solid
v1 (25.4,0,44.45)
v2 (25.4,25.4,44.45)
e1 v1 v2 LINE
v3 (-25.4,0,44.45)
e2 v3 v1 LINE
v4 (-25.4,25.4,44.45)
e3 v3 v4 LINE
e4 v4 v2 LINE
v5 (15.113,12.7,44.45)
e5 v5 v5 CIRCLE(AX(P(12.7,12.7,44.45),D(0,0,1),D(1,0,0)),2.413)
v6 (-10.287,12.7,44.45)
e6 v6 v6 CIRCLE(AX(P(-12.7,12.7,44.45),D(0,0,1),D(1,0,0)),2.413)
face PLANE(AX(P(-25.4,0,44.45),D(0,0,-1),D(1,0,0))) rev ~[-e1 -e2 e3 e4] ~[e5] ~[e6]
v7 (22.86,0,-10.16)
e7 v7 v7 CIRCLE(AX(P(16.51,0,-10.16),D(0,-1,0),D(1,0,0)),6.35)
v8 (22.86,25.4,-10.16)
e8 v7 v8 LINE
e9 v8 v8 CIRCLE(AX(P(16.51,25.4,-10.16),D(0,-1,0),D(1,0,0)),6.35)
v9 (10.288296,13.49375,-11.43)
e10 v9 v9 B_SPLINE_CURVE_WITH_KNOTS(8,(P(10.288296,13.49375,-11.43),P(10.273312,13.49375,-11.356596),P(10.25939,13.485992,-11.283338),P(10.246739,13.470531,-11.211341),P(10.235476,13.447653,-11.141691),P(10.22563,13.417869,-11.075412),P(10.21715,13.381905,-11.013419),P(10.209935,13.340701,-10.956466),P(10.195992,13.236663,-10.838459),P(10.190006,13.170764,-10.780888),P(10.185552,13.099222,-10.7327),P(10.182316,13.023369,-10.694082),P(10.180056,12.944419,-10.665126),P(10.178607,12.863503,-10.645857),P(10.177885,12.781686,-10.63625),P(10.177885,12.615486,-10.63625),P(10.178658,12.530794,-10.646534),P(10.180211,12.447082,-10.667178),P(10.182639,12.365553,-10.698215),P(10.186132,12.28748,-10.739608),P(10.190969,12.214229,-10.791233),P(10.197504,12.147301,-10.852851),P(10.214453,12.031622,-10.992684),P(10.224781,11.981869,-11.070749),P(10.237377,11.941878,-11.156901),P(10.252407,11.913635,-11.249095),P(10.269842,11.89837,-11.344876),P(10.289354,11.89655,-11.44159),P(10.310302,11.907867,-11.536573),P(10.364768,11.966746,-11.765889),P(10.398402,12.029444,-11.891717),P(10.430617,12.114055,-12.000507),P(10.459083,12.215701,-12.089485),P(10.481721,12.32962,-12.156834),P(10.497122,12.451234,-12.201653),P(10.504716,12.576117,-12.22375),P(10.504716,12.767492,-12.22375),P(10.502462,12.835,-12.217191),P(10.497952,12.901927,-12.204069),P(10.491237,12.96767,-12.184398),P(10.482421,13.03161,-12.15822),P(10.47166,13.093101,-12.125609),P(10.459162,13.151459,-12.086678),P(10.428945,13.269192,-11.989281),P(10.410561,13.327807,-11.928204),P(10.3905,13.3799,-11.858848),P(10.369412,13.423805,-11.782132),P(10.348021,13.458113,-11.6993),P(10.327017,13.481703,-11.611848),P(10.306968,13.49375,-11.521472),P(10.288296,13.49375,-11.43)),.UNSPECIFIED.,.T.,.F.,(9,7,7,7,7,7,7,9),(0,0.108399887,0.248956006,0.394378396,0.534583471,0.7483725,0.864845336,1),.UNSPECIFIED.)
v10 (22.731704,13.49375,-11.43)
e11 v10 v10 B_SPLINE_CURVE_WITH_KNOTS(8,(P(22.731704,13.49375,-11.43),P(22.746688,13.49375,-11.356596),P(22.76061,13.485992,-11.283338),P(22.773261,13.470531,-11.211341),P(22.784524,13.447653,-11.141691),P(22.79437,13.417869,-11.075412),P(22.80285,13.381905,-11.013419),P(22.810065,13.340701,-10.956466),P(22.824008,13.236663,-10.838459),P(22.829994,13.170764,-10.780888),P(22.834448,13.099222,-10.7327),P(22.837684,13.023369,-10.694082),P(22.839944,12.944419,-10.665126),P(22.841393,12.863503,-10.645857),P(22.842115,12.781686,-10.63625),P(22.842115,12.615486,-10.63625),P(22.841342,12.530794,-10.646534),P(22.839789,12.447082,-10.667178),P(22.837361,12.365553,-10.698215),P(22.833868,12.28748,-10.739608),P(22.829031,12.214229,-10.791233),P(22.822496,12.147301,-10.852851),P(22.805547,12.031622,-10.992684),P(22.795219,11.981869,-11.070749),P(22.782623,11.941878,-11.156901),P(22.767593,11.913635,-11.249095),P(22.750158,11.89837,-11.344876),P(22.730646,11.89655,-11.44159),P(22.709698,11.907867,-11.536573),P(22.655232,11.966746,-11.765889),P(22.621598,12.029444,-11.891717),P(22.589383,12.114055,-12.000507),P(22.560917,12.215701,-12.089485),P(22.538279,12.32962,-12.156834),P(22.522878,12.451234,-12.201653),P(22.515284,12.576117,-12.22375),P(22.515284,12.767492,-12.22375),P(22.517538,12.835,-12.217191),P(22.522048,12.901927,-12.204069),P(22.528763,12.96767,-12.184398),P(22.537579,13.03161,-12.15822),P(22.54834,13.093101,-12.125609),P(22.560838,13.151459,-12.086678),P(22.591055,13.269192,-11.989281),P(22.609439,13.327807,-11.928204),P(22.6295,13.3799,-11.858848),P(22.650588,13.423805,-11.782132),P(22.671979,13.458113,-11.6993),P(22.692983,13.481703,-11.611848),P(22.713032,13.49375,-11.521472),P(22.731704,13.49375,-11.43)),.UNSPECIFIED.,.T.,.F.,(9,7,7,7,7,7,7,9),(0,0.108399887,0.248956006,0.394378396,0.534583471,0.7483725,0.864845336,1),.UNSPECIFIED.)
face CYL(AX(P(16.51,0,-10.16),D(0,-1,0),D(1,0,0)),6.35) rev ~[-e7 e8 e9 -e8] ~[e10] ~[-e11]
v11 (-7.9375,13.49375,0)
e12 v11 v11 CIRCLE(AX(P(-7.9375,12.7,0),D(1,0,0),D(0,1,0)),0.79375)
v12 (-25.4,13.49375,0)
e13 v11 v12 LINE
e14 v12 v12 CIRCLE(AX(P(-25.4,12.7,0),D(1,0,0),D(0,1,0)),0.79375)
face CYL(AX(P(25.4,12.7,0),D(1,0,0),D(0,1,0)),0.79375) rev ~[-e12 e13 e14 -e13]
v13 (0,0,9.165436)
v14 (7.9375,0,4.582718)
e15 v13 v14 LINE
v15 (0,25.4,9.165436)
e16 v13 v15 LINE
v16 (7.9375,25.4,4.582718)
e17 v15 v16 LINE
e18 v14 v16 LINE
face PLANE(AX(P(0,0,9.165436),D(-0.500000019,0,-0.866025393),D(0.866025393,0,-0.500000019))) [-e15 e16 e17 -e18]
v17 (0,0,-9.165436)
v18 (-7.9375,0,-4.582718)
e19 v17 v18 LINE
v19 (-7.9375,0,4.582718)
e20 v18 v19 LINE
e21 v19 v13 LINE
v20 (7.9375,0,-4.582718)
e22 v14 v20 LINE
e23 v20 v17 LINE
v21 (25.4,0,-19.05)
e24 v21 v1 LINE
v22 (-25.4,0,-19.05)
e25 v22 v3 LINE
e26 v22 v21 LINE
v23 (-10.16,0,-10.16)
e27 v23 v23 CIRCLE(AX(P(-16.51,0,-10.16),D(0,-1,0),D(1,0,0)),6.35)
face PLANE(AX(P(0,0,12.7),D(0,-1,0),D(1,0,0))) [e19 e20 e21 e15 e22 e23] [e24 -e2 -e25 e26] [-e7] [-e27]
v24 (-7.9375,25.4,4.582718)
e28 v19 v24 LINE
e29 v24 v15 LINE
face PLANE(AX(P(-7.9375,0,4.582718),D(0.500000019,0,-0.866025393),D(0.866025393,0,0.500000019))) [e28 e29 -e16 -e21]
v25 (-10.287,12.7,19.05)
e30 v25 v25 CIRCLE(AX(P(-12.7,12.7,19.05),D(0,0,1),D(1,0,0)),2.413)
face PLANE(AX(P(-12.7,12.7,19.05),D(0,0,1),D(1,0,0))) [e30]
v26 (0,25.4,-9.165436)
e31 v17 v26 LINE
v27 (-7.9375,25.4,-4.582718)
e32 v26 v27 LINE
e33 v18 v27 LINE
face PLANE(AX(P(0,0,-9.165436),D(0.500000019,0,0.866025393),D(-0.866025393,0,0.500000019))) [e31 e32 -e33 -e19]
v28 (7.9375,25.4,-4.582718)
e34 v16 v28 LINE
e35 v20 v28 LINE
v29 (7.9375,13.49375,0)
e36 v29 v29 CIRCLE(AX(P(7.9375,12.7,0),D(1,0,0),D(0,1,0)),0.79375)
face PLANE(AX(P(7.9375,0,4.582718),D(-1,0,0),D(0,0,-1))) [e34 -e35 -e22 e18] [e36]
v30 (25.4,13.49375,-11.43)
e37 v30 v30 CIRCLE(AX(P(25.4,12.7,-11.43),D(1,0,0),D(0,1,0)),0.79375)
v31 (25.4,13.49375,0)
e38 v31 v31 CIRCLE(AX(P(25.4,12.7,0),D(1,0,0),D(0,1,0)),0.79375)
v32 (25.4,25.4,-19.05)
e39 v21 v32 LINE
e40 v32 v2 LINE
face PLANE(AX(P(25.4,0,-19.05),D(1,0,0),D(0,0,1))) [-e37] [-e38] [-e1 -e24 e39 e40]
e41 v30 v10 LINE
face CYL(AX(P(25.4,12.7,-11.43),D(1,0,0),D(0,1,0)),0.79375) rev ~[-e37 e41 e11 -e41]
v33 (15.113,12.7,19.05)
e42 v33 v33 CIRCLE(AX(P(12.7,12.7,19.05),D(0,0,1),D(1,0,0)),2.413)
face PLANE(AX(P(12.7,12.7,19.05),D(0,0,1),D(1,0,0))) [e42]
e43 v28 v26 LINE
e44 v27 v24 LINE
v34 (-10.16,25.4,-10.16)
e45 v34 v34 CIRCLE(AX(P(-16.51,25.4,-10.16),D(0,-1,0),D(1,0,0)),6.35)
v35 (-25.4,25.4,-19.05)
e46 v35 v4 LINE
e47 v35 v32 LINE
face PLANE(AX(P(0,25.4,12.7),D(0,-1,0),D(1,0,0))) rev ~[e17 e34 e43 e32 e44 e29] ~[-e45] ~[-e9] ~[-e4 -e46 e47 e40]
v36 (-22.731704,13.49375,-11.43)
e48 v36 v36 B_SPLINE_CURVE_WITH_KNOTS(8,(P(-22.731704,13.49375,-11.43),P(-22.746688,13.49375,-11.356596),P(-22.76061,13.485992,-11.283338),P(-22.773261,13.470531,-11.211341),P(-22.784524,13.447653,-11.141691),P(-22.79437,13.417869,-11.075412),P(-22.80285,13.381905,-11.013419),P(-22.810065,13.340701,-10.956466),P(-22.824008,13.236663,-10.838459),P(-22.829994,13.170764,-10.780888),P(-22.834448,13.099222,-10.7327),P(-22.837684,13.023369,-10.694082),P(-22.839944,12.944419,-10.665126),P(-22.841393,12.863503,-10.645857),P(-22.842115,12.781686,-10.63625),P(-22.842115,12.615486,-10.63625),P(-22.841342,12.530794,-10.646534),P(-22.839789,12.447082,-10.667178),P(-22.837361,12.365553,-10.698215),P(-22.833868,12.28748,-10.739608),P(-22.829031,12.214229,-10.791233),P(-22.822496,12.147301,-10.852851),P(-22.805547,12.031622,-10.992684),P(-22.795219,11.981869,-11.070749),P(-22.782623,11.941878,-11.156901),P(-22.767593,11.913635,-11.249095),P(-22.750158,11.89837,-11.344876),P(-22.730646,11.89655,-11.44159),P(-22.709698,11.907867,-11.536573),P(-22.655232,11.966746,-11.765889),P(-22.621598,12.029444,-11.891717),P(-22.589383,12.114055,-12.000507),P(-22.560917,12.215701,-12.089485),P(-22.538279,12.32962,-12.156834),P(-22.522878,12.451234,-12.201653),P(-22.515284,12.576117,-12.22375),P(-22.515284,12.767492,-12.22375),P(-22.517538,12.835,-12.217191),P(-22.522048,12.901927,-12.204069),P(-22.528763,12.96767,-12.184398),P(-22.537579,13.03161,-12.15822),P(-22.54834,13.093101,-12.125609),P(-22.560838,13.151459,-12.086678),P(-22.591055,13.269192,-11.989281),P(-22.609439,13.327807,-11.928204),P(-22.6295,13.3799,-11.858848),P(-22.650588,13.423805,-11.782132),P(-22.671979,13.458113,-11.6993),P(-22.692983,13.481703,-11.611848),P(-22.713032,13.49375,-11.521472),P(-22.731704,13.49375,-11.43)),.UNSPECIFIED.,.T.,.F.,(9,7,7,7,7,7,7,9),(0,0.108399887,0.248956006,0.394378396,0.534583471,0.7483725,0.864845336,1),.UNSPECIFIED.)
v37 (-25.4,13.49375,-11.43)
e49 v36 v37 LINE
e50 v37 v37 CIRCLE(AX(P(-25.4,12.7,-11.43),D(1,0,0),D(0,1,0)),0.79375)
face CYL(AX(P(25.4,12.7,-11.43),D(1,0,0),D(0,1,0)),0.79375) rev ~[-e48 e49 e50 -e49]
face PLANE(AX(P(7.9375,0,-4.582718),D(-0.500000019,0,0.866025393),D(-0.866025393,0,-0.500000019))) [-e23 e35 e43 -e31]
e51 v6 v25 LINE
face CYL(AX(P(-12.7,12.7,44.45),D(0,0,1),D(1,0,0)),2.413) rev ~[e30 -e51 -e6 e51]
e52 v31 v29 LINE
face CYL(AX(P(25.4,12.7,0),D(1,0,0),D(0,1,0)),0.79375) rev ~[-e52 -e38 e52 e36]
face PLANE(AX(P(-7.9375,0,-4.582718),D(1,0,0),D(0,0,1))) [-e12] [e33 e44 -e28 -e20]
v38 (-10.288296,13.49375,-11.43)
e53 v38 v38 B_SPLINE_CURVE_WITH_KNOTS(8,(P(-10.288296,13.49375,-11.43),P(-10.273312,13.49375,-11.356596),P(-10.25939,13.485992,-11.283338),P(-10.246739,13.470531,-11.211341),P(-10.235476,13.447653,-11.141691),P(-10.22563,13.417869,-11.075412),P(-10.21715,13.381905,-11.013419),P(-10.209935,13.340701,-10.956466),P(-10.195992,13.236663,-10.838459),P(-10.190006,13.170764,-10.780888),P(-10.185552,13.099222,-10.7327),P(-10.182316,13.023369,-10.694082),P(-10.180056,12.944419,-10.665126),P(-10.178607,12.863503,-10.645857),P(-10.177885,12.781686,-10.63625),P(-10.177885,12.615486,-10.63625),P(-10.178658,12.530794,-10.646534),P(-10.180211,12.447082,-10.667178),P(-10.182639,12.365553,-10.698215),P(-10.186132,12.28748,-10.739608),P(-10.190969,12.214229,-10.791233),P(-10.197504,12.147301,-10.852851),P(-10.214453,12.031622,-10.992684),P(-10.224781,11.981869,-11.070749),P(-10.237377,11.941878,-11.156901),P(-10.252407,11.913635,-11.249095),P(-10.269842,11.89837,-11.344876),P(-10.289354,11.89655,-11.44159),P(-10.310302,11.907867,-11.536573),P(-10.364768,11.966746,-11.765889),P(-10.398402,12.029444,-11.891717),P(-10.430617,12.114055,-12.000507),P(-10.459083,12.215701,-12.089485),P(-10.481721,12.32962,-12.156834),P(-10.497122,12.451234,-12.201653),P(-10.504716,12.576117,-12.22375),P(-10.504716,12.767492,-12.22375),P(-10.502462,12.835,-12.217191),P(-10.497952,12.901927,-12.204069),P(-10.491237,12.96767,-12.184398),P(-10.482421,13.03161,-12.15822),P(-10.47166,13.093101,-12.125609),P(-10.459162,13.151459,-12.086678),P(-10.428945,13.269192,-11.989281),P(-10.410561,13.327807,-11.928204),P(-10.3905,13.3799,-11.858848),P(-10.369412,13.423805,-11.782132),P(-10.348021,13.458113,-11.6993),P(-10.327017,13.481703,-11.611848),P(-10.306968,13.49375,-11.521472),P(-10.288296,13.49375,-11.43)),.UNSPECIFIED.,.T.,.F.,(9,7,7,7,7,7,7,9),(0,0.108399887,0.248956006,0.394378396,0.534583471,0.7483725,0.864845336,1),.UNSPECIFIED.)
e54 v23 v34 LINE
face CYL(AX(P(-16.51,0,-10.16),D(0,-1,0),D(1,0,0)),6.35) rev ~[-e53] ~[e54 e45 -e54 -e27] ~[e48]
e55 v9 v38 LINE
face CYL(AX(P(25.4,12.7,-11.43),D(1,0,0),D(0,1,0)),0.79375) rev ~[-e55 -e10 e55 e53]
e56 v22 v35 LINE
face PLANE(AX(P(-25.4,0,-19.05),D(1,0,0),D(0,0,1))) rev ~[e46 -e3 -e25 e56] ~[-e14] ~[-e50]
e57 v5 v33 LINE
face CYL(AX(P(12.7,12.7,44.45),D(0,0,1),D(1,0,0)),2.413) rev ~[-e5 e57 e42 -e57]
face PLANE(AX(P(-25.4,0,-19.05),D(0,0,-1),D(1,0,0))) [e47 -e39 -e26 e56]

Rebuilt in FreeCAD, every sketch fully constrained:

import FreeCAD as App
import Part
import Sketcher
Q = App.Units.Quantity

doc = App.newDocument("Part")
body = doc.addObject("PartDesign::Body", "Body")

sketch1 = body.newObject("Sketcher::SketchObject", "Sketch")
sketch1.AttachmentSupport = (doc.getObject("XZ_Plane"), [""])
sketch1.MapMode = "FlatFace"
sketch1.addGeometry(Part.LineSegment(App.Vector(-25, 44, 0), App.Vector(-25, -19, 0)), False)
sketch1.addGeometry(Part.LineSegment(App.Vector(-25, -19, 0), App.Vector(25, -19, 0)), False)
sketch1.addGeometry(Part.LineSegment(App.Vector(25, -19, 0), App.Vector(25, 44, 0)), False)
sketch1.addGeometry(Part.LineSegment(App.Vector(25, 44, 0), App.Vector(-25, 44, 0)), False)
sketch1.addGeometry(Part.Circle(App.Vector(-17, -10, 0), App.Vector(0, 0, 1), 6), False)
sketch1.addGeometry(Part.Circle(App.Vector(17, -10, 0), App.Vector(0, 0, 1), 6), False)
sketch1.addGeometry(Part.LineSegment(App.Vector(8, -5, 0), App.Vector(0, -9, 0)), False)
sketch1.addGeometry(Part.LineSegment(App.Vector(0, -9, 0), App.Vector(-8, -5, 0)), False)
sketch1.addGeometry(Part.LineSegment(App.Vector(-8, -5, 0), App.Vector(-8, 5, 0)), False)
sketch1.addGeometry(Part.LineSegment(App.Vector(-8, 5, 0), App.Vector(0, 9, 0)), False)
sketch1.addGeometry(Part.LineSegment(App.Vector(0, 9, 0), App.Vector(8, 5, 0)), False)
sketch1.addGeometry(Part.LineSegment(App.Vector(8, 5, 0), App.Vector(8, -5, 0)), False)
sketch1.addConstraint(Sketcher.Constraint("Coincident", 0, 2, 1, 1))
sketch1.addConstraint(Sketcher.Constraint("Coincident", 1, 2, 2, 1))
sketch1.addConstraint(Sketcher.Constraint("Coincident", 2, 2, 3, 1))
sketch1.addConstraint(Sketcher.Constraint("Coincident", 3, 2, 0, 1))
sketch1.addConstraint(Sketcher.Constraint("Coincident", 6, 2, 7, 1))
sketch1.addConstraint(Sketcher.Constraint("Coincident", 7, 2, 8, 1))
sketch1.addConstraint(Sketcher.Constraint("Coincident", 8, 2, 9, 1))
sketch1.addConstraint(Sketcher.Constraint("Coincident", 9, 2, 10, 1))
sketch1.addConstraint(Sketcher.Constraint("Coincident", 10, 2, 11, 1))
sketch1.addConstraint(Sketcher.Constraint("Coincident", 11, 2, 6, 1))
sketch1.addConstraint(Sketcher.Constraint("Vertical", 0))
sketch1.addConstraint(Sketcher.Constraint("Horizontal", 1))
sketch1.addConstraint(Sketcher.Constraint("Vertical", 2))
sketch1.addConstraint(Sketcher.Constraint("Horizontal", 3))
sketch1.addConstraint(Sketcher.Constraint("Vertical", 8))
sketch1.addConstraint(Sketcher.Constraint("Vertical", 11))
sketch1.addConstraint(Sketcher.Constraint("Equal", 4, 5))
sketch1.addConstraint(Sketcher.Constraint("Symmetric", 6, 2, 9, 2, -1, 1))
sketch1.addConstraint(Sketcher.Constraint("Symmetric", 7, 2, 10, 2, -1, 1))
sketch1.addConstraint(Sketcher.Constraint("Symmetric", 4, 3, 5, 3, -2))
sketch1.addConstraint(Sketcher.Constraint("PointOnObject", 6, 2, -2))
sketch1.addConstraint(Sketcher.Constraint("Parallel", 6, 9))
sketch1.addConstraint(Sketcher.Constraint("Horizontal", 8, 2, 10, 2))
sketch1.addConstraint(Sketcher.Constraint("Diameter", 4, Q("0.5 in")))
sketch1.addConstraint(Sketcher.Constraint("DistanceX", 1, 1, 1, 2, Q("2 in")))
sketch1.addConstraint(Sketcher.Constraint("DistanceY", 0, 2, 0, 1, Q("2.5 in")))
sketch1.addConstraint(Sketcher.Constraint("DistanceX", 0, 2, -1, 1, Q("1 in")))
sketch1.addConstraint(Sketcher.Constraint("Angle", 6, Q("-149.999999 deg")))
sketch1.addConstraint(Sketcher.Constraint("DistanceY", 4, 3, -1, 1, Q("0.4 in")))
sketch1.addConstraint(Sketcher.Constraint("DistanceX", 4, 3, 5, 3, Q("1.3 in")))
sketch1.addConstraint(Sketcher.Constraint("DistanceY", 0, 2, -1, 1, Q("0.75 in")))
sketch1.addConstraint(Sketcher.Constraint("DistanceX", 7, 2, -1, 1, Q("0.3125 in")))
sketch1.addConstraint(Sketcher.Constraint("DistanceY", 8, 1, 8, 2, 9.165436))
pad1 = body.newObject("PartDesign::Pad", "Pad")
pad1.Profile = sketch1
pad1.Length = Q("1 in")
pad1.Reversed = True

sketch2 = body.newObject("Sketcher::SketchObject", "Sketch001")
sketch2.AttachmentSupport = (doc.getObject("YZ_Plane"), [""])
sketch2.MapMode = "FlatFace"
sketch2.AttachmentOffset = App.Placement(App.Vector(0, 0, 1 * 25.4), App.Rotation())
sketch2.addGeometry(Part.Circle(App.Vector(12.7, -11.4, 0), App.Vector(0, 0, 1), 0.8), False)
sketch2.addGeometry(Part.Circle(App.Vector(12.7, 0, 0), App.Vector(0, 0, 1), 0.8), False)
sketch2.addConstraint(Sketcher.Constraint("Equal", 0, 1))
sketch2.addConstraint(Sketcher.Constraint("PointOnObject", 1, 3, -1))
sketch2.addConstraint(Sketcher.Constraint("Vertical", 0, 3, 1, 3))
sketch2.addConstraint(Sketcher.Constraint("Diameter", 0, Q("0.0625 in")))
sketch2.addConstraint(Sketcher.Constraint("DistanceX", -1, 1, 0, 3, Q("0.5 in")))
sketch2.addConstraint(Sketcher.Constraint("DistanceY", 0, 3, -1, 1, Q("0.45 in")))
pocket1 = body.newObject("PartDesign::Pocket", "Pocket")
pocket1.Profile = sketch2
pocket1.Type = "ThroughAll"

sketch3 = body.newObject("Sketcher::SketchObject", "Sketch002")
sketch3.AttachmentSupport = (doc.getObject("XY_Plane"), [""])
sketch3.MapMode = "FlatFace"
sketch3.AttachmentOffset = App.Placement(App.Vector(0, 0, 1.75 * 25.4), App.Rotation())
sketch3.addGeometry(Part.Circle(App.Vector(12.7, 12.7, 0), App.Vector(0, 0, 1), 2.4), False)
sketch3.addGeometry(Part.Circle(App.Vector(-12.7, 12.7, 0), App.Vector(0, 0, 1), 2.4), False)
sketch3.addConstraint(Sketcher.Constraint("Equal", 0, 1))
sketch3.addConstraint(Sketcher.Constraint("Symmetric", 0, 3, 1, 3, -2))
sketch3.addConstraint(Sketcher.Constraint("Diameter", 0, Q("0.19 in")))
sketch3.addConstraint(Sketcher.Constraint("DistanceX", 1, 3, 0, 3, Q("1 in")))
sketch3.addConstraint(Sketcher.Constraint("DistanceY", -1, 1, 0, 3, Q("0.5 in")))
pocket2 = body.newObject("PartDesign::Pocket", "Pocket001")
pocket2.Profile = sketch3
pocket2.Length = Q("1 in")

doc.recompute()
